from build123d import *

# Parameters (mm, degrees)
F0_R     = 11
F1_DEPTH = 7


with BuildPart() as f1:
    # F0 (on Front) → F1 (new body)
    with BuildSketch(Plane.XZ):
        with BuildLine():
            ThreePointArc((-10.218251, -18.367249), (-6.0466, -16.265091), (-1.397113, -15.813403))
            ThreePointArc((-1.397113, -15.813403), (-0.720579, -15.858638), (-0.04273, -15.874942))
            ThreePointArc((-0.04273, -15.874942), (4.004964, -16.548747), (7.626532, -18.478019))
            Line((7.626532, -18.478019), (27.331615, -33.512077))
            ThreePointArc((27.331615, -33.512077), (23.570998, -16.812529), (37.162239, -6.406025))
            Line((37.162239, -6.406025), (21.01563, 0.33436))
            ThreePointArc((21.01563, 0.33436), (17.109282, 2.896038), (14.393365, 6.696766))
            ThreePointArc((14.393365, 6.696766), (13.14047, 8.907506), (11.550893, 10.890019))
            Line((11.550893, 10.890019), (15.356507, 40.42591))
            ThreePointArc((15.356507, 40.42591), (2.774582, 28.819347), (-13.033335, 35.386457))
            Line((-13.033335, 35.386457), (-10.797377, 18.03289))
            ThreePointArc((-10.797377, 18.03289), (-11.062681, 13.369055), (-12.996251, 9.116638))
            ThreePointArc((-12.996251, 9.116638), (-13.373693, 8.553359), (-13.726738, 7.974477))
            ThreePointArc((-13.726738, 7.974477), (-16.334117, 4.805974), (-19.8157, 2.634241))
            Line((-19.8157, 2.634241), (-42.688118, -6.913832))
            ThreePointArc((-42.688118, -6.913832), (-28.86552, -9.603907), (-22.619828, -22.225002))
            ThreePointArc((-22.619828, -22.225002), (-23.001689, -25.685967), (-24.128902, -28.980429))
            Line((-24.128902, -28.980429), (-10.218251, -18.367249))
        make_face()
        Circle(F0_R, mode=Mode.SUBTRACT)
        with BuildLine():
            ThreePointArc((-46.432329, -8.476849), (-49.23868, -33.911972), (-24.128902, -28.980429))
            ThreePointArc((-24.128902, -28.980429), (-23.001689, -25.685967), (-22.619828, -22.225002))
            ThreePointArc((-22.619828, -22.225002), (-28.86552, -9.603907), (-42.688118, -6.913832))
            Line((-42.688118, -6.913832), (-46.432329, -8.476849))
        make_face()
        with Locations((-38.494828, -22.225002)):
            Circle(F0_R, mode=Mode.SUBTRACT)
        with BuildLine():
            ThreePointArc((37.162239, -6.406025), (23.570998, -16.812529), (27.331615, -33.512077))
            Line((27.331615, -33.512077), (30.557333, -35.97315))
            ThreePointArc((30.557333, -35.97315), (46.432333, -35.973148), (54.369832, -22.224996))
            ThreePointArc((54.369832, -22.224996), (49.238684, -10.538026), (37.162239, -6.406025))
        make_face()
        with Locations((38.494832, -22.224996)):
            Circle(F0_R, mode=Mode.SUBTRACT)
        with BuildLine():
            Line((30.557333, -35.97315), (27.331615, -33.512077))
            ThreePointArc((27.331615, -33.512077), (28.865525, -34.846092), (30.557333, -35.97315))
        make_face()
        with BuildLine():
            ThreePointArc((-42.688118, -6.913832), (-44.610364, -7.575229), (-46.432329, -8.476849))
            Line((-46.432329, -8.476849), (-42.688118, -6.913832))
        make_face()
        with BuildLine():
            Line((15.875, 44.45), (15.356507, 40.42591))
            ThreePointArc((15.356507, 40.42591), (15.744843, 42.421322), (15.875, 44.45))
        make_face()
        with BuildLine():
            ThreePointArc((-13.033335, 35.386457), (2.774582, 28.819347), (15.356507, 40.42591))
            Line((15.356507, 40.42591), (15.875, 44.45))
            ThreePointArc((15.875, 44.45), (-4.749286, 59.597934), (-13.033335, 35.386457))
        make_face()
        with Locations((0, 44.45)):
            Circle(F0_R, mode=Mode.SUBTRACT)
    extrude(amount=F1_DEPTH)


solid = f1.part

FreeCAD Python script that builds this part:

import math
import FreeCAD as App
import Part
import Sketcher
Q = App.Units.Quantity

doc = App.newDocument("Part")
body = doc.addObject("PartDesign::Body", "Body")

# Sketch on XZ plane
sketch1 = body.newObject("Sketcher::SketchObject", "Sketch")
sketch1.AttachmentSupport = (doc.getObject("XZ_Plane"), [""])
sketch1.MapMode = "FlatFace"
sketch1.addGeometry(Part.ArcOfCircle(Part.Circle(App.Vector(-2.514806, -28.464118, 0), App.Vector(0, 0, 1), 12.699993), math.radians(84.951016), math.radians(127.34196)), False)
sketch1.addGeometry(Part.ArcOfCircle(Part.Circle(App.Vector(-0.000025, -0.000311, 0), App.Vector(0, 0, 1), 15.874688), math.radians(-95.048977), math.radians(-90.154133)), False)
sketch1.addGeometry(Part.ArcOfCircle(Part.Circle(App.Vector(-0.076917, -28.574907, 0), App.Vector(0, 0, 1), 12.700011), math.radians(52.658076), math.radians(89.845765)), False)
sketch1.addGeometry(Part.LineSegment(App.Vector(7.626532, -18.478019, 0), App.Vector(27.331615, -33.512077, 0)), False)
sketch1.addGeometry(Part.ArcOfCircle(Part.Circle(App.Vector(38.49484, -22.22499, 0), App.Vector(0, 0, 1), 15.875009), math.radians(-134.683891), math.radians(-120.000008)), False)
sketch1.addGeometry(Part.ArcOfCircle(Part.Circle(App.Vector(38.494831, -22.224995, 0), App.Vector(0, 0, 1), 15.875001), math.radians(-119.999991), math.radians(-0.000004)), False)
sketch1.addGeometry(Part.ArcOfCircle(Part.Circle(App.Vector(38.494831, -22.224997, 0), App.Vector(0, 0, 1), 15.875001), math.radians(0.000002), math.radians(94.815234)), False)
sketch1.addGeometry(Part.LineSegment(App.Vector(37.162239, -6.406025, 0), App.Vector(21.01563, 0.33436, 0)), False)
sketch1.addGeometry(Part.ArcOfCircle(Part.Circle(App.Vector(25.908063, 12.054185, 0), App.Vector(0, 0, 1), 12.700008), math.radians(-155.048952), math.radians(-112.658061)), False)
sketch1.addGeometry(Part.ArcOfCircle(Part.Circle(App.Vector(-0.000045, -0.000029, 0), App.Vector(0, 0, 1), 15.875054), math.radians(24.951058), math.radians(43.313119)), False)
sketch1.addGeometry(Part.LineSegment(App.Vector(11.550893, 10.890019, 0), App.Vector(15.356507, 40.42591, 0)), False)
sketch1.addGeometry(Part.ArcOfCircle(Part.Circle(App.Vector(-0.000003, 44.450003, 0), App.Vector(0, 0, 1), 15.875003), math.radians(-14.683898), math.radians(-0.000009)), False)
sketch1.addGeometry(Part.ArcOfCircle(Part.Circle(App.Vector(0, 44.45, 0), App.Vector(0, 0, 1), 15.875), math.radians(0.000001), math.radians(214.81523)), False)
sketch1.addGeometry(Part.LineSegment(App.Vector(-13.033335, 35.386457, 0), App.Vector(-10.797377, 18.03289, 0)), False)
sketch1.addGeometry(Part.ArcOfCircle(Part.Circle(App.Vector(-23.393248, 16.409947, 0), App.Vector(0, 0, 1), 12.699996), math.radians(-35.048981), math.radians(7.341949)), False)
sketch1.addGeometry(Part.ArcOfCircle(Part.Circle(App.Vector(0.000274, -0.000172, 0), App.Vector(0, 0, 1), 15.875323), math.radians(144.951088), math.radians(149.845739)), False)
sketch1.addGeometry(Part.ArcOfCircle(Part.Circle(App.Vector(-24.708129, 14.35406, 0), App.Vector(0, 0, 1), 12.700001), math.radians(-67.341945), math.radians(-30.154229)), False)
sketch1.addGeometry(Part.LineSegment(App.Vector(-19.8157, 2.634241, 0), App.Vector(-42.688118, -6.913832, 0)), False)
sketch1.addGeometry(Part.ArcOfCircle(Part.Circle(App.Vector(-38.494844, -22.224971, 0), App.Vector(0, 0, 1), 15.874965), math.radians(105.316084), math.radians(120.000009)), False)
sketch1.addGeometry(Part.ArcOfCircle(Part.Circle(App.Vector(-38.494828, -22.225002, 0), App.Vector(0, 0, 1), 15.875), math.radians(120.000004), math.radians(334.815233)), False)
sketch1.addGeometry(Part.LineSegment(App.Vector(-24.128902, -28.980429, 0), App.Vector(-10.218251, -18.367249, 0)), False)
sketch1.addGeometry(Part.Circle(App.Vector(-38.494828, -22.225002, 0), App.Vector(0, 0, 1), 11), False)
sketch1.addGeometry(Part.Circle(App.Vector(0, 0, 0), App.Vector(0, 0, 1), 11), False)
sketch1.addGeometry(Part.Circle(App.Vector(38.494832, -22.224996, 0), App.Vector(0, 0, 1), 11), False)
sketch1.addGeometry(Part.Circle(App.Vector(0, 44.45, 0), App.Vector(0, 0, 1), 11), False)
sketch1.addConstraint(Sketcher.Constraint("Coincident", 0, 1, 1, 1))
sketch1.addConstraint(Sketcher.Constraint("Coincident", 1, 2, 2, 2))
sketch1.addConstraint(Sketcher.Constraint("Coincident", 2, 1, 3, 1))
sketch1.addConstraint(Sketcher.Constraint("Coincident", 3, 2, 4, 1))
sketch1.addConstraint(Sketcher.Constraint("Coincident", 4, 2, 5, 1))
sketch1.addConstraint(Sketcher.Constraint("Coincident", 5, 2, 6, 1))
sketch1.addConstraint(Sketcher.Constraint("Coincident", 6, 2, 7, 1))
sketch1.addConstraint(Sketcher.Constraint("Coincident", 7, 2, 8, 2))
sketch1.addConstraint(Sketcher.Constraint("Coincident", 8, 1, 9, 1))
sketch1.addConstraint(Sketcher.Constraint("Coincident", 9, 2, 10, 1))
sketch1.addConstraint(Sketcher.Constraint("Coincident", 10, 2, 11, 1))
sketch1.addConstraint(Sketcher.Constraint("Coincident", 11, 2, 12, 1))
sketch1.addConstraint(Sketcher.Constraint("Coincident", 12, 2, 13, 1))
sketch1.addConstraint(Sketcher.Constraint("Coincident", 13, 2, 14, 2))
sketch1.addConstraint(Sketcher.Constraint("Coincident", 14, 1, 15, 1))
sketch1.addConstraint(Sketcher.Constraint("Coincident", 15, 2, 16, 2))
sketch1.addConstraint(Sketcher.Constraint("Coincident", 16, 1, 17, 1))
sketch1.addConstraint(Sketcher.Constraint("Coincident", 17, 2, 18, 1))
sketch1.addConstraint(Sketcher.Constraint("Coincident", 18, 2, 19, 1))
sketch1.addConstraint(Sketcher.Constraint("Coincident", 19, 2, 20, 1))
sketch1.addConstraint(Sketcher.Constraint("Coincident", 20, 2, 0, 2))
sketch1.addConstraint(Sketcher.Constraint("Coincident", 22, 3, -1, 1))
sketch1.addConstraint(Sketcher.Constraint("Coincident", 5, 3, 4, 3))
sketch1.addConstraint(Sketcher.Constraint("Coincident", 6, 3, 5, 3))
sketch1.addConstraint(Sketcher.Constraint("Coincident", 12, 3, 11, 3))
sketch1.addConstraint(Sketcher.Constraint("Coincident", 21, 3, 19, 3))
sketch1.addConstraint(Sketcher.Constraint("Coincident", 23, 3, 4, 3))
sketch1.addConstraint(Sketcher.Constraint("Coincident", 24, 3, 11, 3))
sketch1.addConstraint(Sketcher.Constraint("PointOnObject", 12, 3, -2))
sketch1.addConstraint(Sketcher.Constraint("Radius", 14, Q("0.4999999 in")))
sketch1.addConstraint(Sketcher.Constraint("Radius", 16, Q("0.5 in")))
sketch1.addConstraint(Sketcher.Constraint("Radius", 5, Q("0.625 in")))
sketch1.addConstraint(Sketcher.Constraint("Radius", 11, Q("0.6250001 in")))
sketch1.addConstraint(Sketcher.Constraint("Radius", 19, Q("0.625 in")))
sketch1.addConstraint(Sketcher.Constraint("Diameter", 21, Q("22 mm")))
sketch1.addConstraint(Sketcher.Constraint("Diameter", 22, Q("22 mm")))
sketch1.addConstraint(Sketcher.Constraint("Diameter", 23, Q("22 mm")))
sketch1.addConstraint(Sketcher.Constraint("Diameter", 24, Q("22 mm")))
sketch1.addConstraint(Sketcher.Constraint("DistanceY", -1, 1, 11, 3, Q("1.7500001 in")))
sketch1.addConstraint(Sketcher.Constraint("DistanceY", -1, 1, 11, 2, Q("1.75 in")))
sketch1.addConstraint(Sketcher.Constraint("DistanceY", 6, 3, -1, 1, Q("0.8749999 in")))
sketch1.addConstraint(Sketcher.Constraint("DistanceY", 19, 3, -1, 1, Q("0.8750001 in")))
sketch1.addConstraint(Sketcher.Constraint("DistanceY", 5, 2, -1, 1, Q("0.8749998 in")))
sketch1.addConstraint(Sketcher.Constraint("Radius", 2, Q("12.700011 mm")))
sketch1.addConstraint(Sketcher.Constraint("DistanceX", 4, 2, 6, 3, Q("0.3124999 in")))
sketch1.addConstraint(Sketcher.Constraint("DistanceX", 18, 2, 19, 3, Q("0.3125 in")))
sketch1.addConstraint(Sketcher.Constraint("Radius", 0, Q("12.699993 mm")))
sketch1.addConstraint(Sketcher.Constraint("Radius", 1, Q("15.874688 mm")))
sketch1.addConstraint(Sketcher.Constraint("Radius", 8, Q("12.700008 mm")))
sketch1.addConstraint(Sketcher.Constraint("Radius", 9, Q("15.875054 mm")))
sketch1.addConstraint(Sketcher.Constraint("Radius", 15, Q("15.875323 mm")))
sketch1.addConstraint(Sketcher.Constraint("Radius", 18, Q("15.874965 mm")))
sketch1.addConstraint(Sketcher.Constraint("DistanceX", 16, 1, -1, 1, Q("19.8157 mm")))
sketch1.addConstraint(Sketcher.Constraint("DistanceX", 1, 3, 15, 3, Q("0.0003 mm")))
sketch1.addConstraint(Sketcher.Constraint("DistanceX", 19, 3, 16, 3, Q("13.786699 mm")))
sketch1.addConstraint(Sketcher.Constraint("DistanceY", 0, 3, 2, 1, Q("9.986099 mm")))
sketch1.addConstraint(Sketcher.Constraint("DistanceX", 6, 2, 4, 3, Q("1.332601 mm")))
sketch1.addConstraint(Sketcher.Constraint("Distance", 7, Q("17.497022 mm")))
sketch1.addConstraint(Sketcher.Constraint("DistanceY", 1, 3, -1, 1, Q("0.000311 mm")))
sketch1.addConstraint(Sketcher.Constraint("DistanceX", -1, 1, 4, 3, Q("38.49484 mm")))
sketch1.addConstraint(Sketcher.Constraint("DistanceY", 15, 3, -1, 1, Q("0.000172 mm")))
sketch1.addConstraint(Sketcher.Constraint("DistanceX", 16, 3, -1, 1, Q("24.708129 mm")))
sketch1.addConstraint(Sketcher.Constraint("DistanceY", -1, 1, 16, 3, Q("14.35406 mm")))
sketch1.addConstraint(Sketcher.Constraint("DistanceY", 18, 3, -1, 1, Q("22.224971 mm")))
sketch1.addConstraint(Sketcher.Constraint("DistanceX", 1, 2, -1, 1, Q("0.04273 mm")))
sketch1.addConstraint(Sketcher.Constraint("DistanceY", 2, 1, -1, 1, Q("18.478019 mm")))
sketch1.addConstraint(Sketcher.Constraint("DistanceX", -1, 1, 7, 2, Q("21.01563 mm")))
sketch1.addConstraint(Sketcher.Constraint("DistanceY", -1, 1, 9, 2, Q("10.890019 mm")))
sketch1.addConstraint(Sketcher.Constraint("DistanceY", -1, 1, 10, 2, Q("40.42591 mm")))
sketch1.addConstraint(Sketcher.Constraint("DistanceY", -1, 1, 13, 2, Q("18.03289 mm")))
sketch1.addConstraint(Sketcher.Constraint("DistanceX", 14, 1, -1, 1, Q("12.996251 mm")))
sketch1.addConstraint(Sketcher.Constraint("DistanceX", 17, 2, -1, 1, Q("42.688118 mm")))
sketch1.addConstraint(Sketcher.Constraint("DistanceY", 19, 2, -1, 1, Q("28.980429 mm")))
sketch1.addConstraint(Sketcher.Constraint("DistanceX", 20, 2, -1, 1, Q("10.218251 mm")))
sketch1.addConstraint(Sketcher.Constraint("DistanceX", 0, 3, 2, 3, Q("2.437889 mm")))
sketch1.addConstraint(Sketcher.Constraint("DistanceX", 8, 3, 5, 3, Q("12.586769 mm")))
sketch1.addConstraint(Sketcher.Constraint("DistanceX", 0, 3, 9, 3, Q("2.514761 mm")))
sketch1.addConstraint(Sketcher.Constraint("DistanceY", 1, 3, 14, 3, Q("16.410259 mm")))
sketch1.addConstraint(Sketcher.Constraint("DistanceY", 0, 1, 1, 3, Q("15.813092 mm")))
sketch1.addConstraint(Sketcher.Constraint("DistanceY", 3, 2, 6, 3, Q("11.28708 mm")))
sketch1.addConstraint(Sketcher.Constraint("DistanceY", 8, 1, 8, 3, Q("5.357419 mm")))
sketch1.addConstraint(Sketcher.Constraint("DistanceY", 14, 3, 12, 2, Q("18.97651 mm")))
sketch1.addConstraint(Sketcher.Constraint("DistanceY", 15, 2, 14, 1, Q("1.142161 mm")))
pad1 = body.newObject("PartDesign::Pad", "Pad")
pad1.Profile = sketch1
pad1.Length = 7

doc.recompute()
